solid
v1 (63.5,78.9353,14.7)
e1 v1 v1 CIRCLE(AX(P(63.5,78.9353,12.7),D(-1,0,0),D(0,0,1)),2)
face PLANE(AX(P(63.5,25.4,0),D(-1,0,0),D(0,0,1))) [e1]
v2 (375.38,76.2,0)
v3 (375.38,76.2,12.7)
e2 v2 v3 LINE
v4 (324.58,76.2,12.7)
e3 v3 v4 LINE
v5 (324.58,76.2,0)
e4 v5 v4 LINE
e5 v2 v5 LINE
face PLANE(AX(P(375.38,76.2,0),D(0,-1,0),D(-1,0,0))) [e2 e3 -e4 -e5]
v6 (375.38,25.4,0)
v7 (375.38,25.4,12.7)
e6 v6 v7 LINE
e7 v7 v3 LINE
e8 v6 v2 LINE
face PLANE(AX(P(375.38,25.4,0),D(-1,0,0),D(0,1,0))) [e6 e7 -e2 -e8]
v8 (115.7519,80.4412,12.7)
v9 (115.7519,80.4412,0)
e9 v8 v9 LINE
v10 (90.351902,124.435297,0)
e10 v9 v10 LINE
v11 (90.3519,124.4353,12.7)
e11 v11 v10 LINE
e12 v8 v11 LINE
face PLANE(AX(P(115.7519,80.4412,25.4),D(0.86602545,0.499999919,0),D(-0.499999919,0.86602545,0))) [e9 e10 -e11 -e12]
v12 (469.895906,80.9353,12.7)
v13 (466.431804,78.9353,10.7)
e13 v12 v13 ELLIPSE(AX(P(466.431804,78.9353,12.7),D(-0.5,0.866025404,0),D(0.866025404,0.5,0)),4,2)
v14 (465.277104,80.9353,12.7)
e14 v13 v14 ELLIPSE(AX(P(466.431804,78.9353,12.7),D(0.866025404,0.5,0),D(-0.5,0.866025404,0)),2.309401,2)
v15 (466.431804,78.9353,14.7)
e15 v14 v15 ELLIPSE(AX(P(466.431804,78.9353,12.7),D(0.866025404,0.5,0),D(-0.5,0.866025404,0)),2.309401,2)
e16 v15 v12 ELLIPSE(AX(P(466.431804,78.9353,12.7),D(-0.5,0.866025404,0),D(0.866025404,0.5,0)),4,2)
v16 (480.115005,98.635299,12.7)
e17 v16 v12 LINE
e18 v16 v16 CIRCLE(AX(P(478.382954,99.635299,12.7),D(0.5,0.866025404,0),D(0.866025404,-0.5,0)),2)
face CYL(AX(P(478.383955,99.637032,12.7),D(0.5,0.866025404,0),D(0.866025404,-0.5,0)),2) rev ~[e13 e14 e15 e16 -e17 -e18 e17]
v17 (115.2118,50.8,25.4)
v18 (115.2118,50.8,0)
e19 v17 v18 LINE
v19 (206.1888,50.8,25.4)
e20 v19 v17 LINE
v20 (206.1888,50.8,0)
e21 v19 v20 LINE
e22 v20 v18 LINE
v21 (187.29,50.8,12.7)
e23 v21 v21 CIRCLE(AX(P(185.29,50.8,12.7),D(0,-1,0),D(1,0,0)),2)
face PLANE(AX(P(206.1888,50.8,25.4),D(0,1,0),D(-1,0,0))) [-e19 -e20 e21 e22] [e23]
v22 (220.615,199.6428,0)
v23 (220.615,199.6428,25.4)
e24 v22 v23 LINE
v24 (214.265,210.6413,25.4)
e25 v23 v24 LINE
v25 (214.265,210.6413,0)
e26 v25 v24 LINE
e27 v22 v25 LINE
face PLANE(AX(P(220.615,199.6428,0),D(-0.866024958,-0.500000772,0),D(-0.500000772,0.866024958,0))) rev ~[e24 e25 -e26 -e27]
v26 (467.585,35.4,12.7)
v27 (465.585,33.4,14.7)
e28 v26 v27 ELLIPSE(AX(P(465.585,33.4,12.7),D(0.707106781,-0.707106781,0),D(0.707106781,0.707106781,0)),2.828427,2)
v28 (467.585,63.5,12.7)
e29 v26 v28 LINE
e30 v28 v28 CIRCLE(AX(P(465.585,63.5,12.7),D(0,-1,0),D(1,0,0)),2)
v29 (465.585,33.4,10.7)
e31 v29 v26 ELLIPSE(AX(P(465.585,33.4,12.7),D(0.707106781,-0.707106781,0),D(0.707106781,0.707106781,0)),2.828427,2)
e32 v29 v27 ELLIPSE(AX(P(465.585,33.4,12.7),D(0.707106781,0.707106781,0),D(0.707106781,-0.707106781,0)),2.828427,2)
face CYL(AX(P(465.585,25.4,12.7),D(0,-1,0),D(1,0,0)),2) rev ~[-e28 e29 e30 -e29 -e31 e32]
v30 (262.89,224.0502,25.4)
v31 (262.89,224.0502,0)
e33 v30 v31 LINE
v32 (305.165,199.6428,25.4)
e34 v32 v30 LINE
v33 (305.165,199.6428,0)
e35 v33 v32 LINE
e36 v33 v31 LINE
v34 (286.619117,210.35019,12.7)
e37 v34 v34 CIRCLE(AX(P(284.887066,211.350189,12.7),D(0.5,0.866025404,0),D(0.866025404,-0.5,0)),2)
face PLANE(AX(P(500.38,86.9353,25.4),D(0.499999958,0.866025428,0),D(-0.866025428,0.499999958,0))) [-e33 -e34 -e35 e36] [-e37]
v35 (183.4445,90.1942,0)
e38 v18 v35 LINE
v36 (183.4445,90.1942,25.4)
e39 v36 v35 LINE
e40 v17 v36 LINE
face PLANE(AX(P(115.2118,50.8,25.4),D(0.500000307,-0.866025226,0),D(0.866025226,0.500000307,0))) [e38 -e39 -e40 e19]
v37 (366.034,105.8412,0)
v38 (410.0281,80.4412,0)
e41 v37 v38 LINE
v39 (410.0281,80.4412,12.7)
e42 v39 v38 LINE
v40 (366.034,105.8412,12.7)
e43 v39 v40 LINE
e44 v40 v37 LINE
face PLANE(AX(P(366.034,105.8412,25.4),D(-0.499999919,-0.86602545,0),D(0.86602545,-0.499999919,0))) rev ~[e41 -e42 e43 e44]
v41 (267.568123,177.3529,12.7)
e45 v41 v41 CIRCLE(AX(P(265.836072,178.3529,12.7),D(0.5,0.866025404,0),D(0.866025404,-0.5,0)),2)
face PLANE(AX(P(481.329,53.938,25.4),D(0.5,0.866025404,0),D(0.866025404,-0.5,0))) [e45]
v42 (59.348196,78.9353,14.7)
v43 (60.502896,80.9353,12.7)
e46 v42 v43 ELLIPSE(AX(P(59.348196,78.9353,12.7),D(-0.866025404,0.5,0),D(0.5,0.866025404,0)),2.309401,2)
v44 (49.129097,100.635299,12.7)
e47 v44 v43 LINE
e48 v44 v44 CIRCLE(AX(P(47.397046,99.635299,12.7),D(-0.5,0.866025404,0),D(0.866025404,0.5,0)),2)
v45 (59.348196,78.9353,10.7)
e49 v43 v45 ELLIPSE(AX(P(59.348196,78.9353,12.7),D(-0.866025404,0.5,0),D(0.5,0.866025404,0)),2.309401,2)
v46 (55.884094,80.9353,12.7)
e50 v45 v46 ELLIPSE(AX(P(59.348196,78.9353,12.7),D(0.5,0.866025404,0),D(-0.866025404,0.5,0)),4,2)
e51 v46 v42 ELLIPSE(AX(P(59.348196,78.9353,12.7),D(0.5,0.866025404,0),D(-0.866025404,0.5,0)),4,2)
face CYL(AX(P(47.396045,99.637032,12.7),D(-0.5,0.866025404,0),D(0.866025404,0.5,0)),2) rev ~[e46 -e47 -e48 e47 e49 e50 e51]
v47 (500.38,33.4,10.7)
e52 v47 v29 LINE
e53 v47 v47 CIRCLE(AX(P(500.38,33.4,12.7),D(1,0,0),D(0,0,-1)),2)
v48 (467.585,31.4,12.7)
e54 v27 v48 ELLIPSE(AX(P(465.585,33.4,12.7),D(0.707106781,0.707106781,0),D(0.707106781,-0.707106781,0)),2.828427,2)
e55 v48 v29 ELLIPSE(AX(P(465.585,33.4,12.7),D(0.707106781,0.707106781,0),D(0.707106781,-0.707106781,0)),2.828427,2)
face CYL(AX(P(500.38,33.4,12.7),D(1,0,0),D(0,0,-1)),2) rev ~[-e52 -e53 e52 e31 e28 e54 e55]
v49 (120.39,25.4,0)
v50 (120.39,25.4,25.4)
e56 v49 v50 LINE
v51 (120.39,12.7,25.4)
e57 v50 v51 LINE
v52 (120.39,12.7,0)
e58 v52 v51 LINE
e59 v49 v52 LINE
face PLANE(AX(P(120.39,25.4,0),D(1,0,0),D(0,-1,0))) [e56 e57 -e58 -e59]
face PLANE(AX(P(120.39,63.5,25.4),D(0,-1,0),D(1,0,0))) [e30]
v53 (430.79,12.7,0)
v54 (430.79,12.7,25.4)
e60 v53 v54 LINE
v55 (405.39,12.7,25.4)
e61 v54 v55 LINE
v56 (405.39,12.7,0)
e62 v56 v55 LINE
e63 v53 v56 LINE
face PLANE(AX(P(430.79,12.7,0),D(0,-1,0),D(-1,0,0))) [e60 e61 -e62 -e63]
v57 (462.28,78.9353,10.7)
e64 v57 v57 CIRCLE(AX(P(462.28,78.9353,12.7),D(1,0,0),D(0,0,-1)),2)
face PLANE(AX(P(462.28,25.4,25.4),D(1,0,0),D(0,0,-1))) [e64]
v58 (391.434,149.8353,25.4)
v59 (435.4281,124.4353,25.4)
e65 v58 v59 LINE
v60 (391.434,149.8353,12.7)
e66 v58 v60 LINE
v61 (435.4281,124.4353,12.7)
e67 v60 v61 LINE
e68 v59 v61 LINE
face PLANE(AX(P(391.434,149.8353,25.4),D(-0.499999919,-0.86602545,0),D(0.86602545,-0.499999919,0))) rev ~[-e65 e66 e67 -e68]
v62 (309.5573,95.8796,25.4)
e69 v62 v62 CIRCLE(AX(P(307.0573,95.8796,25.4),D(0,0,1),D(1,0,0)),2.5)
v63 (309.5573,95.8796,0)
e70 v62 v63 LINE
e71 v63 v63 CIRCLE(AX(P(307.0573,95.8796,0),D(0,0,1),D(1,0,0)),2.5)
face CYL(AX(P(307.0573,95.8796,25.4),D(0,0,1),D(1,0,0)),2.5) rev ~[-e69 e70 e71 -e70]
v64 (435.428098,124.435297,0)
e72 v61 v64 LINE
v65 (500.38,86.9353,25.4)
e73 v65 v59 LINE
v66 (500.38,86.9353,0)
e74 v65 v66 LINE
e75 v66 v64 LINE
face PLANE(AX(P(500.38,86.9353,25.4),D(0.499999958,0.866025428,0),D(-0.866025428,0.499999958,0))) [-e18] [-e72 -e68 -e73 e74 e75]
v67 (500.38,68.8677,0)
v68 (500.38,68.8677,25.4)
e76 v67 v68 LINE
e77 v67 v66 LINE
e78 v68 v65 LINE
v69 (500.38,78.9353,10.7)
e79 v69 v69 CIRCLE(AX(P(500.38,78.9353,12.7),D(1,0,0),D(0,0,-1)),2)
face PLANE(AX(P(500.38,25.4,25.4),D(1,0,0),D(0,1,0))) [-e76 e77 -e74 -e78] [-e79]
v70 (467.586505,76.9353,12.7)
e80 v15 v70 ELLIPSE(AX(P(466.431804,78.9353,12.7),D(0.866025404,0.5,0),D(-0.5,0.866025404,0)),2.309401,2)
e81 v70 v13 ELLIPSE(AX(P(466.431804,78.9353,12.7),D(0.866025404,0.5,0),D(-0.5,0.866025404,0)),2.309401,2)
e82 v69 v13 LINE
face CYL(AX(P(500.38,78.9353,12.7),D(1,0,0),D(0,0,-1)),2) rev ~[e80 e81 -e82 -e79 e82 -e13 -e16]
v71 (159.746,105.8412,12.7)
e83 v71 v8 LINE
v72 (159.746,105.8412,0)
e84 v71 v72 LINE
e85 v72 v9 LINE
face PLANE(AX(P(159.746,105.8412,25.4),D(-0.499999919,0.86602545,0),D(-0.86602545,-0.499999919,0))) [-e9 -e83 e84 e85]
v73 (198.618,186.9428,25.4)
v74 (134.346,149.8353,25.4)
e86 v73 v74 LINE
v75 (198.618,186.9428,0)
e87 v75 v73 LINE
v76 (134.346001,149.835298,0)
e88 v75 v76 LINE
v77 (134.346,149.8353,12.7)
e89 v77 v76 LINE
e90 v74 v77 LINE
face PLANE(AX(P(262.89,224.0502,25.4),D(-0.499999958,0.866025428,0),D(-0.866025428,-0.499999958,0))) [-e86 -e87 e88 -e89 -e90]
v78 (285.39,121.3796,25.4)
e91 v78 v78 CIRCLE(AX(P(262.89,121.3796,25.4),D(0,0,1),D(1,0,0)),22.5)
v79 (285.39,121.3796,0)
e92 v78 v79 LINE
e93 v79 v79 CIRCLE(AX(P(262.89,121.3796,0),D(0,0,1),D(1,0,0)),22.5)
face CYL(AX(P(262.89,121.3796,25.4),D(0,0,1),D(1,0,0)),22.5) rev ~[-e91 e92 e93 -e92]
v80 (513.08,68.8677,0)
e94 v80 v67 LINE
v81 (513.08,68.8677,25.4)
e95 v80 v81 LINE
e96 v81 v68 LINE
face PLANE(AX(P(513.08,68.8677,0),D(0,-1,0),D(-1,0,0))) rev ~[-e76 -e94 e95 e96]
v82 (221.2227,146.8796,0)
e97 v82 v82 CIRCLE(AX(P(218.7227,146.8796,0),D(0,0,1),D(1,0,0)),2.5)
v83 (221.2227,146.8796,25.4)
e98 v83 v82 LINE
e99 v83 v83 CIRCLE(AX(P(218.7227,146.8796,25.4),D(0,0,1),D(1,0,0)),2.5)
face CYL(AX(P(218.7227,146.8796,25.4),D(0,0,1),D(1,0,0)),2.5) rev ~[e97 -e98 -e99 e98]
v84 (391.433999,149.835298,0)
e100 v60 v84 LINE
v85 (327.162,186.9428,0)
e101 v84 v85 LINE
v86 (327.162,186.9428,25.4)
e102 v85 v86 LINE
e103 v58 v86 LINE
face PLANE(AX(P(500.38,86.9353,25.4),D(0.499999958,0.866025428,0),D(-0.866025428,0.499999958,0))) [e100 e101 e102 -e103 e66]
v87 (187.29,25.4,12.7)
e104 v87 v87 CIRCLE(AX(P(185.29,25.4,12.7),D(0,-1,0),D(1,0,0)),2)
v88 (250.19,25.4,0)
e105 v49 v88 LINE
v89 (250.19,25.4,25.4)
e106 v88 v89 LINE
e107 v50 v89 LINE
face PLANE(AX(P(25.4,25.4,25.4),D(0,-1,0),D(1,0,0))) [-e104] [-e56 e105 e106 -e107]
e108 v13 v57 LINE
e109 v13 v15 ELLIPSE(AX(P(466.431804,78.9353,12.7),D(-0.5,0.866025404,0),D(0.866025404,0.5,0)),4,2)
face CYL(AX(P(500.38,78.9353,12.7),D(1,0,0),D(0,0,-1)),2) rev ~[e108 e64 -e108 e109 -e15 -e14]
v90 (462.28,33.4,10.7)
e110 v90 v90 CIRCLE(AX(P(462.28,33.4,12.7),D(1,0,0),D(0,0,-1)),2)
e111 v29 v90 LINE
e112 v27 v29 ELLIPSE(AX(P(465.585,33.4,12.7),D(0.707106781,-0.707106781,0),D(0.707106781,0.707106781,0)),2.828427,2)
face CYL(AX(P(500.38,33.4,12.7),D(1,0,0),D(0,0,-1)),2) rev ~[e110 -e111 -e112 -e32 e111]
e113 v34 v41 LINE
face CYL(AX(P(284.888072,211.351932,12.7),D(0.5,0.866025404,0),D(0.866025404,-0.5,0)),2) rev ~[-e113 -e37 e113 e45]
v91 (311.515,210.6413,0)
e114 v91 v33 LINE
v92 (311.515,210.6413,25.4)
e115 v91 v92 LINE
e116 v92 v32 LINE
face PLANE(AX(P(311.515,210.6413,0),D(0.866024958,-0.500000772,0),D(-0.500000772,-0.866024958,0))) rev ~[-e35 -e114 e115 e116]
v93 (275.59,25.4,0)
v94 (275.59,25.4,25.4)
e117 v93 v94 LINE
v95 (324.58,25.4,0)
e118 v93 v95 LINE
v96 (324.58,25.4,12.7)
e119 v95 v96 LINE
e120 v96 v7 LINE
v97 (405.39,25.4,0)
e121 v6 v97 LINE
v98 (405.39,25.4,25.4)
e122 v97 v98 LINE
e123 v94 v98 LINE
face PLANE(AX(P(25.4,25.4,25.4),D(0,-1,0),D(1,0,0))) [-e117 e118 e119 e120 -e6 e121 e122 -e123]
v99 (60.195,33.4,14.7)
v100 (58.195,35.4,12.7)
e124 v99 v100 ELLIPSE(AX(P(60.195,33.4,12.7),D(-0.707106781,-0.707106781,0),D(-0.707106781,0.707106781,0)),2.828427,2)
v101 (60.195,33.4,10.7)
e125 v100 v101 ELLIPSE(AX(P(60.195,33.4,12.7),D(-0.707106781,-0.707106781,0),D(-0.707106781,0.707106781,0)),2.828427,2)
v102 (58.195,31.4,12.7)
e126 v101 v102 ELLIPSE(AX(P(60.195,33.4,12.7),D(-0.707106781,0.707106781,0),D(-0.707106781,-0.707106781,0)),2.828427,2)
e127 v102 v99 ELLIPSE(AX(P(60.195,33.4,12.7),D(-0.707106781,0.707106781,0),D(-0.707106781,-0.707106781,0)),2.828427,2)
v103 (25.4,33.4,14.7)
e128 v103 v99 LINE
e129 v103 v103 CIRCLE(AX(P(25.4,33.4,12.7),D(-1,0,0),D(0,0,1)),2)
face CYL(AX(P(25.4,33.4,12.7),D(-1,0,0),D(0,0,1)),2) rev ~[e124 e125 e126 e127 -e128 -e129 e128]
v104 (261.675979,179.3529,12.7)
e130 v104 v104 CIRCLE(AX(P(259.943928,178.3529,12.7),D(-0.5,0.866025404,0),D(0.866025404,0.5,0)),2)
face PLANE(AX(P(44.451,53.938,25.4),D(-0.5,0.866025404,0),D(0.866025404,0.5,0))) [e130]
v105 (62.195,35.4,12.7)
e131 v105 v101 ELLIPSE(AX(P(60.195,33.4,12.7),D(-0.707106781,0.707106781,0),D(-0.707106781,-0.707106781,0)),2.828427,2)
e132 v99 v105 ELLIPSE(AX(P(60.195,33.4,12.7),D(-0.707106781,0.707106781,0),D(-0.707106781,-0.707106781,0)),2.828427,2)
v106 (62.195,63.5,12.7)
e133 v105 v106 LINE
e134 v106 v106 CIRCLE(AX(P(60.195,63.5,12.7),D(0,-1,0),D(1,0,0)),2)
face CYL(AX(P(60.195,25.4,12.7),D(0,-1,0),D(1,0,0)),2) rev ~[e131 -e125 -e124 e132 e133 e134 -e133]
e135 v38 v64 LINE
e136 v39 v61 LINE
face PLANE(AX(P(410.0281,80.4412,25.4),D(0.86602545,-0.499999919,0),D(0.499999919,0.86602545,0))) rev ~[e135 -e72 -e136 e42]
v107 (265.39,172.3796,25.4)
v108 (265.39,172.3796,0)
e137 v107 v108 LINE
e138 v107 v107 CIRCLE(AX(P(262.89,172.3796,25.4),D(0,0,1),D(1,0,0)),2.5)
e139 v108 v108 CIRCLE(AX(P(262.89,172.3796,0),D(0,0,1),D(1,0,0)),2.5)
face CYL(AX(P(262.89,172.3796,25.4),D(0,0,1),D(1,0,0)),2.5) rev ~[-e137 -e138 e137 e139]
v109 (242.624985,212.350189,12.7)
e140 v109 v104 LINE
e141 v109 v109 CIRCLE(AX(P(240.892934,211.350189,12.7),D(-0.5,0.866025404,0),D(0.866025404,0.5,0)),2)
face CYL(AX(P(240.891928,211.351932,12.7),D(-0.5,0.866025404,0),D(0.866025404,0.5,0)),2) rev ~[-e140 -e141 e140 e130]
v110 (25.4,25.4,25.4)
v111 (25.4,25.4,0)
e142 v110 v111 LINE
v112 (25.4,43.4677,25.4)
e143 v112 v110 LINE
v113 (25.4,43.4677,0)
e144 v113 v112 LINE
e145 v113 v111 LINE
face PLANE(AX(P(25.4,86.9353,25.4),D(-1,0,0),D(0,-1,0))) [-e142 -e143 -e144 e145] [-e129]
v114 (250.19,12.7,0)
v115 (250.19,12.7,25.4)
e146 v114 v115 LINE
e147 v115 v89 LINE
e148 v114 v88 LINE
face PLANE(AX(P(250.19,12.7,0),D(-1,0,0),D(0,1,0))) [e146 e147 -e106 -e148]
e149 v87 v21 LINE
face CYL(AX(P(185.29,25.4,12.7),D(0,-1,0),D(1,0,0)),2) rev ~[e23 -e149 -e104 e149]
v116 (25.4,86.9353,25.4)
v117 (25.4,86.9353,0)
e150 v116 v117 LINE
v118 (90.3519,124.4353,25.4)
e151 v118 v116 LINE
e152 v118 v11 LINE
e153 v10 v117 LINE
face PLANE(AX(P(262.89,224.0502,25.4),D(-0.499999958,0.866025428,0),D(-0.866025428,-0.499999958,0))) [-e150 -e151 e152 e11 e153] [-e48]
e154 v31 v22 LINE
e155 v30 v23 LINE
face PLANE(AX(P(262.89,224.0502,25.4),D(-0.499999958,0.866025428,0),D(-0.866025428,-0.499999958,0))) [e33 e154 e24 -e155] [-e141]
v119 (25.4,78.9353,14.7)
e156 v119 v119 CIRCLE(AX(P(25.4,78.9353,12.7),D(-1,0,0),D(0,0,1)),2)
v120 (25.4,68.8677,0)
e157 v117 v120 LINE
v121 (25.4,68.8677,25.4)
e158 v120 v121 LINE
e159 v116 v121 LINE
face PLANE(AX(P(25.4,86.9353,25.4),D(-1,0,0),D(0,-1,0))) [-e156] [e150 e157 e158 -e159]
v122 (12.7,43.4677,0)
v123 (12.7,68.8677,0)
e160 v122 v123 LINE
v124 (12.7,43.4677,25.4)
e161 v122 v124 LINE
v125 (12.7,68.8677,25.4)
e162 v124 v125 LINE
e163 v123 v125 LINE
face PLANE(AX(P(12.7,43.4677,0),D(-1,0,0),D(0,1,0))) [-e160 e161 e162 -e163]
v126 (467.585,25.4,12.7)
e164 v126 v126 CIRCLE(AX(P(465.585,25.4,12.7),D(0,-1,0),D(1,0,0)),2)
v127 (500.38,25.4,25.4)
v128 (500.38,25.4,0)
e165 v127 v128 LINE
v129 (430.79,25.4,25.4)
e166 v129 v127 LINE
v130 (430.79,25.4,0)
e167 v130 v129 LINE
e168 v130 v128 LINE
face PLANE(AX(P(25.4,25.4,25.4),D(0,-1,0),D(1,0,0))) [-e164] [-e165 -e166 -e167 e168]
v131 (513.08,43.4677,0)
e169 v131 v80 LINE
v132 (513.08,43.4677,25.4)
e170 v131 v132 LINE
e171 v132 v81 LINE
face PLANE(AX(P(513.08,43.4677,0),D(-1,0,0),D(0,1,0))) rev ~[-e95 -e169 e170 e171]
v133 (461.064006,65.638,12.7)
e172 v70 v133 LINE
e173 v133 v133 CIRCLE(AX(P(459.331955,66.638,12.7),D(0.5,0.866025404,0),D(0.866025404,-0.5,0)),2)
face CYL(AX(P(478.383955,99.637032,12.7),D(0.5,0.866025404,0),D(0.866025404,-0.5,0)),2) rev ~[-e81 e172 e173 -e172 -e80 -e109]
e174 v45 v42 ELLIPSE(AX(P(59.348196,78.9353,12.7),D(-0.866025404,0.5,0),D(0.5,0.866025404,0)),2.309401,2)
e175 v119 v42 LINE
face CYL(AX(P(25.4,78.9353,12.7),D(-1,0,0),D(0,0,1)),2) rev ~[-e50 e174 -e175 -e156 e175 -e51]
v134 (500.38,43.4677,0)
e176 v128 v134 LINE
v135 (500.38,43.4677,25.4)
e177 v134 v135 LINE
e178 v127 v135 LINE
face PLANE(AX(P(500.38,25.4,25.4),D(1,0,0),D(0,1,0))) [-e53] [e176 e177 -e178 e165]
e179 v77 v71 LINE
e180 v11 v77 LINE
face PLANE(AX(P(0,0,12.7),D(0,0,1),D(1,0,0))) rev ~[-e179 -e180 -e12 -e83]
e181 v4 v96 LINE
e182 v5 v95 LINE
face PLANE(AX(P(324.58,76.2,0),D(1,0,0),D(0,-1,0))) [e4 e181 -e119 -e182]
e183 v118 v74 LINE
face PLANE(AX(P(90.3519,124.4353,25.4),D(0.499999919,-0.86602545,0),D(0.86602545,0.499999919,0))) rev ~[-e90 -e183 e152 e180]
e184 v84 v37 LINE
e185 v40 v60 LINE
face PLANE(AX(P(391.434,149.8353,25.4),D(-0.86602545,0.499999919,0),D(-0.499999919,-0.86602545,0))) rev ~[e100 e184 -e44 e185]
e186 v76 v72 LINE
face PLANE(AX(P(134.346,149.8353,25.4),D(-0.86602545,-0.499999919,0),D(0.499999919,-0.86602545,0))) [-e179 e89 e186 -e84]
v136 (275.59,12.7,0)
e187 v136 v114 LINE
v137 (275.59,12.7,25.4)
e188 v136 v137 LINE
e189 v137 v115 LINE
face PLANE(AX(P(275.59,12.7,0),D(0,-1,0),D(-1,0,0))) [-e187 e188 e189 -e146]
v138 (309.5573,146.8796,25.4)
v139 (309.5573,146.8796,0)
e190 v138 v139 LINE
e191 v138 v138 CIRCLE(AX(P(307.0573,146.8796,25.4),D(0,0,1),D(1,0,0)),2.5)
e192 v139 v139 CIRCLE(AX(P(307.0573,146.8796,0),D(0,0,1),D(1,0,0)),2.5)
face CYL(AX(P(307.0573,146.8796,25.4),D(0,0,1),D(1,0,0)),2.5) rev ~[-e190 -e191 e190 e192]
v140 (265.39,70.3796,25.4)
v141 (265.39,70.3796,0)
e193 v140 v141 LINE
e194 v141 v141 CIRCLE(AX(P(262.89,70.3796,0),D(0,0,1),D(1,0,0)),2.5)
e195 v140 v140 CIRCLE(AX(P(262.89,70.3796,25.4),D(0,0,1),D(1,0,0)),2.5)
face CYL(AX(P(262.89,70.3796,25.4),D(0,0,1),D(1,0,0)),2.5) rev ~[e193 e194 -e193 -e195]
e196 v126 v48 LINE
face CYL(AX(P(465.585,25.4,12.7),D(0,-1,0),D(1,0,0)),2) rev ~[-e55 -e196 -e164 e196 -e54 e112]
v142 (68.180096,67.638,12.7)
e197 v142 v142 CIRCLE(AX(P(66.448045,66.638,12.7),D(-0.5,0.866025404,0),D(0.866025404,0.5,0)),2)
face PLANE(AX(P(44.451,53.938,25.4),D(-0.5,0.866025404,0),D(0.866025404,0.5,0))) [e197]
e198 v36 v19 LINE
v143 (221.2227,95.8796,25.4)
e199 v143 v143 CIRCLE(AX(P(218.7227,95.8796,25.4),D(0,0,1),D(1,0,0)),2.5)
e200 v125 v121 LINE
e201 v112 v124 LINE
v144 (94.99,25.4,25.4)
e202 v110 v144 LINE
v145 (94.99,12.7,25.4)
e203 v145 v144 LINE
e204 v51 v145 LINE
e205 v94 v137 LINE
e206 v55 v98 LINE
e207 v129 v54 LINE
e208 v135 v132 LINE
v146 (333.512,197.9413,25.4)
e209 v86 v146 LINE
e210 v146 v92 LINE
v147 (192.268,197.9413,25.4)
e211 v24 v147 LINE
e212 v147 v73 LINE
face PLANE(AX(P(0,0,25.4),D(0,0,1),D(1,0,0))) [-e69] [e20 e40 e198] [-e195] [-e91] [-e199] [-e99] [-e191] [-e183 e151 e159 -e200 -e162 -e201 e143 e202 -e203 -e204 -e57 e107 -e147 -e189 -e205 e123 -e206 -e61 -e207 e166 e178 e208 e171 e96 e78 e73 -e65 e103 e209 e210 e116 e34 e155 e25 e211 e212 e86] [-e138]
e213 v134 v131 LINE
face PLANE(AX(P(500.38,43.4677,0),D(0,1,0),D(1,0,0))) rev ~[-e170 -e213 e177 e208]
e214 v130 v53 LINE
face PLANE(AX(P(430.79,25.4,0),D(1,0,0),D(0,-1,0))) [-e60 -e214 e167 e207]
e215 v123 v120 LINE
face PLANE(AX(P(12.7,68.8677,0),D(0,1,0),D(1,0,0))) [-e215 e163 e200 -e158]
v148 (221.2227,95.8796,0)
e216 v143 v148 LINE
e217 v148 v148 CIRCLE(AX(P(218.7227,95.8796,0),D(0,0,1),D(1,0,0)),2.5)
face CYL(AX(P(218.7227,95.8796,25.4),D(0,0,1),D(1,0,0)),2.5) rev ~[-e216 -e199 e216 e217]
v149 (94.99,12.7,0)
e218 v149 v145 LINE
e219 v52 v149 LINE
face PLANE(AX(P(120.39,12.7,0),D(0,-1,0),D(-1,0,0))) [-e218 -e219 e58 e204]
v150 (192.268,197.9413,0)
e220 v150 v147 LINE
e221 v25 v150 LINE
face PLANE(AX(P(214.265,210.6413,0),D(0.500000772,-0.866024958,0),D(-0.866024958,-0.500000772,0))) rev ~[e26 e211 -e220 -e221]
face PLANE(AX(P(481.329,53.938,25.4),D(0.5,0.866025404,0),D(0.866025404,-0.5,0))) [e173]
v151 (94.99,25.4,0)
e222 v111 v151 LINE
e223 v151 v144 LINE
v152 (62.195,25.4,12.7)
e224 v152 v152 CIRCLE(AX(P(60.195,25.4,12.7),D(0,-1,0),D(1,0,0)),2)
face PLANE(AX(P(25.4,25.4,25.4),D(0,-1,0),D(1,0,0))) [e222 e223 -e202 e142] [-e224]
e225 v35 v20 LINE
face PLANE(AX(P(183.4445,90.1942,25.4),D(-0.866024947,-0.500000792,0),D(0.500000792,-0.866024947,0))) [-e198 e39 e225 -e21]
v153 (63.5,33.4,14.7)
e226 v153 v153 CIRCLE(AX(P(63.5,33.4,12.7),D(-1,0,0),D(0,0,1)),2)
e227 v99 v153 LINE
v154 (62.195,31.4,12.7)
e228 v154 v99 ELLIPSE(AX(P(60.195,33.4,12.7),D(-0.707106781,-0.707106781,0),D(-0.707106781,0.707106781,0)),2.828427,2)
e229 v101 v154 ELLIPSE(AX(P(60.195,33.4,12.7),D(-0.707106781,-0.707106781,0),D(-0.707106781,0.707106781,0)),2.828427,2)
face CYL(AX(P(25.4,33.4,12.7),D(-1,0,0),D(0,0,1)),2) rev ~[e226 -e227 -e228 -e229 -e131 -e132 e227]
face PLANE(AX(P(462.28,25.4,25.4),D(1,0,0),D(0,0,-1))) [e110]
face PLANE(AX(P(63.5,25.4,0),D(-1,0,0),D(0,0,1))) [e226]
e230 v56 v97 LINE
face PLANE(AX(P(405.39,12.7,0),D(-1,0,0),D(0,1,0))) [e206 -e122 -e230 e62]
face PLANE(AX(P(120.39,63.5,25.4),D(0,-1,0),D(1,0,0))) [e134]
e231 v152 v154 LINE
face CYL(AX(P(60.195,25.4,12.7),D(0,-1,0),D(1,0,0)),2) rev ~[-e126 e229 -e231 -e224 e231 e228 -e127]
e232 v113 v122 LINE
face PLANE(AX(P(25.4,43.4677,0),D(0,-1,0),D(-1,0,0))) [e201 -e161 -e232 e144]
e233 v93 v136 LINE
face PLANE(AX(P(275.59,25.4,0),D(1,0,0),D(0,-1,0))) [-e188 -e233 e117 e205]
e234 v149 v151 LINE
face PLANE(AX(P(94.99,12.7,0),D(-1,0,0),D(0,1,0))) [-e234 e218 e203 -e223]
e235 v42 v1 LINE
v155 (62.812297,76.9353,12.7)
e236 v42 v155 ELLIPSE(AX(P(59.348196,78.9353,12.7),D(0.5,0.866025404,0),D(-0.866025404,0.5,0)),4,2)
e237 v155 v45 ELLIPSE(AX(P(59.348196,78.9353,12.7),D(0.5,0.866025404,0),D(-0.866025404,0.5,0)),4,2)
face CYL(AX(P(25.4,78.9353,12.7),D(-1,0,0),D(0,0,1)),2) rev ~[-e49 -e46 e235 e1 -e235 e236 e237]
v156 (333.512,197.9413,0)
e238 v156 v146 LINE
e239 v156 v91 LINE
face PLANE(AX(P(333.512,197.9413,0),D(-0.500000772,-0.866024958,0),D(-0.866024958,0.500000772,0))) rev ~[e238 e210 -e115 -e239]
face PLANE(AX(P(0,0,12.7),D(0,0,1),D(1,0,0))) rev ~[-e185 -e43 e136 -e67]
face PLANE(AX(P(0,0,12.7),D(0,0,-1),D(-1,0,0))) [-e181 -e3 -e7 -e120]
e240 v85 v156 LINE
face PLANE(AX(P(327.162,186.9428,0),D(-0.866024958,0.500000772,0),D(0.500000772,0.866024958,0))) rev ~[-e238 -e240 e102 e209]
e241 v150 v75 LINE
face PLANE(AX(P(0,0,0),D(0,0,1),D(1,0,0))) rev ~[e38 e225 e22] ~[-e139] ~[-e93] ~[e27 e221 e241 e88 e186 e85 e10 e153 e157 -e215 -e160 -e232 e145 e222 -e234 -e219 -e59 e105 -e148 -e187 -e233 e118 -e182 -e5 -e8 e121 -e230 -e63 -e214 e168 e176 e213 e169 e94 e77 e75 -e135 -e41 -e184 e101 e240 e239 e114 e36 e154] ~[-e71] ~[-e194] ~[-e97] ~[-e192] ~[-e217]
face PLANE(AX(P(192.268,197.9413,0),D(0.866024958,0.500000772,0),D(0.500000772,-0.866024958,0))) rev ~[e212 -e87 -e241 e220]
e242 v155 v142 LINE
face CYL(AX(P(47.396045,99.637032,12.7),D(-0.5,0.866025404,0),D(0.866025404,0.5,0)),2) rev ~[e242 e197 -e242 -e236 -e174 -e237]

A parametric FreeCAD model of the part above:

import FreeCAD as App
import Part
import Sketcher
Q = App.Units.Quantity


def add_polygon(sketch, points):
    """Adds a closed chain of lines whose ends are joined by coincident constraints."""
    first, n = sketch.GeometryCount, len(points)
    for a, b in zip(points, points[1:] + points[:1]):
        sketch.addGeometry(Part.LineSegment(App.Vector(*a, 0), App.Vector(*b, 0)), False)
    for i in range(n):
        sketch.addConstraint(Sketcher.Constraint("Coincident", first + i, 2, first + (i + 1) % n, 1))

doc = App.newDocument("Part")
body = doc.addObject("PartDesign::Body", "Body")

sketch1 = doc.addObject("Sketcher::SketchObject", "Sketch")
body.addObject(sketch1)
sketch1.AttachmentSupport = (doc.XY_Plane, [""])
sketch1.MapMode = "FlatFace"
add_polygon(sketch1, [(526, 102), (263, 253), (0, 102), (0, 0), (526, 0)])
sketch1.addConstraint([
    Sketcher.Constraint("Vertical", 2),
    Sketcher.Constraint("Horizontal", 3),
    Sketcher.Constraint("Vertical", 4),
    Sketcher.Constraint("Coincident", 2, 2, -1, 1),
    Sketcher.Constraint("Horizontal", 1, 2, 4, 2),
    Sketcher.Constraint("Equal", 0, 1),
    Sketcher.Constraint("DistanceY", 2, 2, 2, 1, Q("4 in")),
    Sketcher.Constraint("DistanceX", 3, 1, 3, 2, Q("20.7 in")),
    Sketcher.Constraint("Angle", 0, Q("150 deg")),
])
pad1 = doc.addObject("PartDesign::Pad", "Pad")
body.addObject(pad1)
pad1.Profile = sketch1
pad1.Length = Q("1 in")

sketch2 = doc.addObject("Sketcher::SketchObject", "Sketch001")
body.addObject(sketch2)
sketch2.AttachmentSupport = (doc.XY_Plane, [""])
sketch2.MapMode = "FlatFace"
sketch2.AttachmentOffset = App.Placement(App.Vector(0, 0, 1 * 25.4), App.Rotation())
sketch2.addGeometry(Part.Circle(App.Vector(263, 121, 0), App.Vector(0, 0, 1), 22), False)
sketch2.addConstraint([
    Sketcher.Constraint("Diameter", 0, 45.0),
    Sketcher.Constraint("DistanceX", -1, 1, 0, 3, Q("10.35 in")),
    Sketcher.Constraint("DistanceY", -1, 1, 0, 3, 121.3796),
])
pocket1 = doc.addObject("PartDesign::Pocket", "Pocket")
body.addObject(pocket1)
pocket1.Profile = sketch2
pocket1.Type = "ThroughAll"

sketch3 = doc.addObject("Sketcher::SketchObject", "Sketch002")
body.addObject(sketch3)
sketch3.AttachmentSupport = (doc.XY_Plane, [""])
sketch3.MapMode = "FlatFace"
sketch3.AttachmentOffset = App.Placement(App.Vector(0, 0, 1 * 25.4), App.Rotation())
add_polygon(sketch3, [(263, 253), (0, 102), (0, 0), (526, 0), (526, 102)])
add_polygon(sketch3, [(25, 25), (25, 87), (263, 224), (500, 87), (500, 25)])
sketch3.addConstraint([
    Sketcher.Constraint("Vertical", 1),
    Sketcher.Constraint("Horizontal", 2),
    Sketcher.Constraint("Vertical", 3),
    Sketcher.Constraint("Vertical", 5),
    Sketcher.Constraint("Vertical", 8),
    Sketcher.Constraint("Horizontal", 9),
    Sketcher.Constraint("Coincident", 1, 2, -1, 1),
    Sketcher.Constraint("Parallel", 0, 6),
    Sketcher.Constraint("Parallel", 4, 7),
    Sketcher.Constraint("Horizontal", 0, 2, 3, 2),
    Sketcher.Constraint("Horizontal", 5, 2, 7, 2),
    Sketcher.Constraint("Vertical", 4, 2, 6, 2),
    Sketcher.Constraint("Equal", 0, 4),
    Sketcher.Constraint("DistanceX", -1, 1, 5, 2, Q("1 in")),
    Sketcher.Constraint("DistanceY", -1, 1, 8, 2, Q("1 in")),
    Sketcher.Constraint("DistanceY", 1, 2, 1, 1, Q("4 in")),
    Sketcher.Constraint("DistanceX", 2, 1, 2, 2, Q("20.7 in")),
    Sketcher.Constraint("Angle", 0, Q("-150 deg")),
    Sketcher.Constraint("DistanceY", 5, 1, 5, 2, 61.5353),
])
pocket2 = doc.addObject("PartDesign::Pocket", "Pocket001")
body.addObject(pocket2)
pocket2.Profile = sketch3
pocket2.Type = "ThroughAll"

sketch4 = doc.addObject("Sketcher::SketchObject", "Sketch003")
body.addObject(sketch4)
sketch4.AttachmentSupport = (doc.XY_Plane, [""])
sketch4.MapMode = "FlatFace"
sketch4.AttachmentOffset = App.Placement(App.Vector(0, 0, 1 * 25.4), App.Rotation())
add_polygon(sketch4, [(160, 106), (134, 150), (90, 124), (116, 80)])
add_polygon(sketch4, [(435, 124), (391, 150), (366, 106), (410, 80)])
sketch4.addConstraint([
    Sketcher.Constraint("Perpendicular", 0, 1),
    Sketcher.Constraint("Perpendicular", 1, 2),
    Sketcher.Constraint("Perpendicular", 2, 3),
    Sketcher.Constraint("Perpendicular", 4, 5),
    Sketcher.Constraint("Perpendicular", 5, 6),
    Sketcher.Constraint("Perpendicular", 6, 7),
    Sketcher.Constraint("Horizontal", 0, 2, 4, 2),
    Sketcher.Constraint("Horizontal", 3, 2, 5, 2),
    Sketcher.Constraint("Horizontal", 2, 2, 6, 2),
    Sketcher.Constraint("Equal", 0, 1),
    Sketcher.Constraint("Equal", 3, 4),
    Sketcher.Constraint("Distance", 0, Q("2 in")),
    Sketcher.Constraint("Angle", 0, Q("120 deg")),
    Sketcher.Constraint("DistanceX", -1, 1, 0, 2, 134.346),
    Sketcher.Constraint("DistanceY", -1, 1, 0, 2, 149.8353),
    Sketcher.Constraint("DistanceX", -1, 1, 4, 2, 391.434),
])
pocket3 = doc.addObject("PartDesign::Pocket", "Pocket002")
body.addObject(pocket3)
pocket3.Profile = sketch4
pocket3.Type = "ThroughAll"

sketch5 = doc.addObject("Sketcher::SketchObject", "Sketch004")
body.addObject(sketch5)
sketch5.AttachmentSupport = (doc.XY_Plane, [""])
sketch5.MapMode = "FlatFace"
add_polygon(sketch5, [(13, 69), (25, 69), (25, 43), (13, 43)])
add_polygon(sketch5, [(513, 43), (500, 43), (500, 69), (513, 69)])
add_polygon(sketch5, [(405, 13), (405, 25), (431, 25), (431, 13)])
add_polygon(sketch5, [(250, 13), (250, 25), (276, 25), (276, 13)])
add_polygon(sketch5, [(95, 13), (95, 25), (120, 25), (120, 13)])
add_polygon(sketch5, [(214, 211), (221, 200), (199, 187), (192, 198)])
add_polygon(sketch5, [(327, 187), (305, 200), (312, 211), (334, 198)])
sketch5.addConstraint([
    Sketcher.Constraint("Horizontal", 0),
    Sketcher.Constraint("Vertical", 1),
    Sketcher.Constraint("Horizontal", 2),
    Sketcher.Constraint("Vertical", 3),
    Sketcher.Constraint("Horizontal", 4),
    Sketcher.Constraint("Vertical", 5),
    Sketcher.Constraint("Horizontal", 6),
    Sketcher.Constraint("Vertical", 7),
    Sketcher.Constraint("Vertical", 8),
    Sketcher.Constraint("Horizontal", 9),
    Sketcher.Constraint("Vertical", 10),
    Sketcher.Constraint("Horizontal", 11),
    Sketcher.Constraint("Vertical", 12),
    Sketcher.Constraint("Horizontal", 13),
    Sketcher.Constraint("Vertical", 14),
    Sketcher.Constraint("Horizontal", 15),
    Sketcher.Constraint("Vertical", 16),
    Sketcher.Constraint("Horizontal", 17),
    Sketcher.Constraint("Vertical", 18),
    Sketcher.Constraint("Horizontal", 19),
    Sketcher.Constraint("Perpendicular", 20, 21),
    Sketcher.Constraint("Perpendicular", 21, 22),
    Sketcher.Constraint("Perpendicular", 22, 23),
    Sketcher.Constraint("Perpendicular", 24, 25),
    Sketcher.Constraint("Perpendicular", 25, 26),
    Sketcher.Constraint("Perpendicular", 26, 27),
    Sketcher.Constraint("Horizontal", 2, 2, 4, 2),
    Sketcher.Constraint("Horizontal", 3, 2, 5, 2),
    Sketcher.Constraint("Horizontal", 9, 2, 12, 2),
    Sketcher.Constraint("Horizontal", 11, 2, 14, 2),
    Sketcher.Constraint("Horizontal", 13, 2, 16, 2),
    Sketcher.Constraint("Horizontal", 15, 2, 18, 2),
    Sketcher.Constraint("Horizontal", 20, 2, 24, 2),
    Sketcher.Constraint("Horizontal", 23, 2, 25, 2),
    Sketcher.Constraint("Horizontal", 22, 2, 26, 2),
    Sketcher.Constraint("Equal", 2, 4),
    Sketcher.Constraint("Equal", 11, 13),
    Sketcher.Constraint("Equal", 15, 17),
    Sketcher.Constraint("Equal", 19, 1),
    Sketcher.Constraint("Equal", 6, 8),
    Sketcher.Constraint("Equal", 23, 24),
    Sketcher.Constraint("DistanceX", 9, 1, 9, 2, Q("1 in")),
    Sketcher.Constraint("Distance", 21, Q("1 in")),
    Sketcher.Constraint("DistanceX", 0, 1, 0, 2, Q("0.5 in")),
    Sketcher.Constraint("DistanceX", -1, 1, 0, 2, Q("1 in")),
    Sketcher.Constraint("DistanceY", -1, 1, 8, 2, Q("1 in")),
    Sketcher.Constraint("Distance", 20, Q("0.5 in")),
    Sketcher.Constraint("DistanceY", 21, 2, 20, 2, Q("0.5 in")),
    Sketcher.Constraint("DistanceX", -1, 1, 4, 2, Q("19.7 in")),
    Sketcher.Constraint("DistanceX", -1, 1, 12, 2, Q("9.85 in")),
    Sketcher.Constraint("DistanceX", -1, 1, 21, 2, Q("7.8196 in")),
    Sketcher.Constraint("DistanceX", -1, 1, 26, 2, Q("13.1304 in")),
    Sketcher.Constraint("DistanceY", -1, 1, 0, 2, 68.8677),
    Sketcher.Constraint("DistanceX", -1, 1, 8, 2, 405.39),
    Sketcher.Constraint("DistanceX", -1, 1, 16, 2, 94.99),
    Sketcher.Constraint("DistanceY", -1, 1, 20, 2, 199.6428),
])
pad2 = doc.addObject("PartDesign::Pad", "Pad001")
body.addObject(pad2)
pad2.Profile = sketch5
pad2.Length = Q("1 in")

sketch6 = doc.addObject("Sketcher::SketchObject", "Sketch005")
body.addObject(sketch6)
sketch6.AttachmentSupport = (doc.XY_Plane, [""])
sketch6.MapMode = "FlatFace"
add_polygon(sketch6, [(375, 25), (325, 25), (325, 76), (375, 76)])
sketch6.addConstraint([
    Sketcher.Constraint("Horizontal", 0),
    Sketcher.Constraint("Vertical", 1),
    Sketcher.Constraint("Horizontal", 2),
    Sketcher.Constraint("Vertical", 3),
    Sketcher.Constraint("Equal", 2, 1),
    Sketcher.Constraint("DistanceX", 0, 2, 0, 1, Q("2 in")),
    Sketcher.Constraint("DistanceY", -1, 1, 0, 2, Q("1 in")),
    Sketcher.Constraint("DistanceX", -1, 1, 0, 2, 324.58),
])
pocket4 = doc.addObject("PartDesign::Pocket", "Pocket003")
body.addObject(pocket4)
pocket4.Profile = sketch6
pocket4.Length = Q("0.5 in")
pocket4.Reversed = True

sketch7 = doc.addObject("Sketcher::SketchObject", "Sketch006")
body.addObject(sketch7)
sketch7.AttachmentSupport = (doc.XY_Plane, [""])
sketch7.MapMode = "FlatFace"
sketch7.AttachmentOffset = App.Placement(App.Vector(0, 0, 1 * 25.4), App.Rotation())
add_polygon(sketch7, [(183, 90), (115, 51), (206, 51)])
sketch7.addConstraint([
    Sketcher.Constraint("Horizontal", 1),
    Sketcher.Constraint("Perpendicular", 0, 2),
    Sketcher.Constraint("DistanceY", -1, 1, 0, 2, Q("2 in")),
    Sketcher.Constraint("Angle", 0, Q("-150 deg")),
    Sketcher.Constraint("Distance", 0, Q("3.1019 in")),
    Sketcher.Constraint("DistanceX", -1, 1, 0, 2, Q("4.5359 in")),
])
pocket5 = doc.addObject("PartDesign::Pocket", "Pocket004")
body.addObject(pocket5)
pocket5.Profile = sketch7
pocket5.Type = "ThroughAll"

sketch8 = doc.addObject("Sketcher::SketchObject", "Sketch007")
body.addObject(sketch8)
sketch8.AttachmentSupport = (doc.XY_Plane, [""])
sketch8.MapMode = "FlatFace"
sketch8.AttachmentOffset = App.Placement(App.Vector(0, 0, 1 * 25.4), App.Rotation())
sketch8.addGeometry([
    Part.Circle(App.Vector(307.1, 146.9, 0), App.Vector(0, 0, 1), 2.5),
    Part.Circle(App.Vector(262.9, 121.4, 0), App.Vector(0, 0, 1), 22.5),
    Part.Circle(App.Vector(262.9, 172.4, 0), App.Vector(0, 0, 1), 2.5),
    Part.Circle(App.Vector(218.7, 146.9, 0), App.Vector(0, 0, 1), 2.5),
    Part.Circle(App.Vector(218.7, 95.9, 0), App.Vector(0, 0, 1), 2.5),
    Part.Circle(App.Vector(262.9, 70.4, 0), App.Vector(0, 0, 1), 2.5),
    Part.Circle(App.Vector(307.1, 95.9, 0), App.Vector(0, 0, 1), 2.5),
], False)
sketch8.addConstraint([
    Sketcher.Constraint("Equal", 0, 2),
    Sketcher.Constraint("Equal", 2, 3),
    Sketcher.Constraint("Equal", 3, 4),
    Sketcher.Constraint("Equal", 4, 5),
    Sketcher.Constraint("Equal", 5, 6),
    Sketcher.Constraint("Horizontal", 0, 3, 3, 3),
    Sketcher.Constraint("Horizontal", 4, 3, 6, 3),
    Sketcher.Constraint("Vertical", 1, 3, 2, 3),
    Sketcher.Constraint("Vertical", 3, 3, 4, 3),
    Sketcher.Constraint("Vertical", 2, 3, 5, 3),
    Sketcher.Constraint("Vertical", 0, 3, 6, 3),
    Sketcher.Constraint("Diameter", 0, 5.0),
    Sketcher.Constraint("Diameter", 1, 45.0),
    Sketcher.Constraint("DistanceX", -1, 1, 1, 3, Q("10.35 in")),
    Sketcher.Constraint("DistanceY", 1, 3, 2, 3, 51.0),
    Sketcher.Constraint("DistanceY", 4, 3, 3, 3, 51.0),
    Sketcher.Constraint("DistanceY", 5, 3, 1, 3, 51.0),
    Sketcher.Constraint("DistanceY", -1, 1, 2, 3, Q("6.7866 in")),
    Sketcher.Constraint("DistanceY", 4, 3, 2, 3, Q("3.0118 in")),
    Sketcher.Constraint("DistanceX", -1, 1, 0, 3, 307.0573),
    Sketcher.Constraint("DistanceX", -1, 1, 3, 3, 218.7227),
])
pocket6 = doc.addObject("PartDesign::Pocket", "Pocket005")
body.addObject(pocket6)
pocket6.Profile = sketch8
pocket6.Type = "ThroughAll"

sketch9 = doc.addObject("Sketcher::SketchObject", "Sketch008")
body.addObject(sketch9)
sketch9.AttachmentSupport = (doc.XY_Plane, [""])
sketch9.MapMode = "FlatFace"
sketch9.AttachmentOffset = App.Placement(App.Vector(0, 0, 1 * 25.4), App.Rotation())
add_polygon(sketch9, [(90, 124), (116, 80), (160, 106), (134, 150)])
add_polygon(sketch9, [(391, 150), (366, 106), (410, 80), (435, 124)])
sketch9.addConstraint([
    Sketcher.Constraint("Perpendicular", 0, 1),
    Sketcher.Constraint("Perpendicular", 1, 2),
    Sketcher.Constraint("Perpendicular", 2, 3),
    Sketcher.Constraint("Perpendicular", 4, 5),
    Sketcher.Constraint("Perpendicular", 5, 6),
    Sketcher.Constraint("Perpendicular", 6, 7),
    Sketcher.Constraint("Horizontal", 1, 2, 4, 2),
    Sketcher.Constraint("Horizontal", 0, 2, 5, 2),
    Sketcher.Constraint("Horizontal", 3, 2, 6, 2),
    Sketcher.Constraint("Equal", 0, 1),
    Sketcher.Constraint("Equal", 3, 4),
    Sketcher.Constraint("Distance", 0, Q("2 in")),
    Sketcher.Constraint("Angle", 0, Q("-60 deg")),
    Sketcher.Constraint("DistanceX", -1, 1, 0, 2, 115.752),
    Sketcher.Constraint("DistanceY", -1, 1, 0, 2, 80.4412),
    Sketcher.Constraint("DistanceX", -1, 1, 4, 2, 366.034),
])
pad3 = doc.addObject("PartDesign::Pad", "Pad002")
body.addObject(pad3)
pad3.Profile = sketch9
pad3.Length = Q("0.5 in")
pad3.Reversed = True

sketch10 = doc.addObject("Sketcher::SketchObject", "Sketch009")
body.addObject(sketch10)
sketch10.Placement = App.Placement(App.Vector(500.38, 86.9353, 25.4), App.Rotation(App.Vector(0.866025404, -0.5, 0), App.Vector(0, 0, -1), App.Vector(0.5, 0.866025404, 0), "ZXY"))
sketch10.addGeometry([
    Part.Circle(App.Vector(-25.4, 12.7, 0), App.Vector(0, 0, 1), 2),
    Part.Circle(App.Vector(-248.8, 12.7, 0), App.Vector(0, 0, 1), 2),
], False)
sketch10.addConstraint([
    Sketcher.Constraint("Equal", 0, 1),
    Sketcher.Constraint("Horizontal", 0, 3, 1, 3),
    Sketcher.Constraint("DistanceX", 0, 3, -1, 1, Q("1 in")),
    Sketcher.Constraint("Diameter", 0, 4.0),
    Sketcher.Constraint("DistanceY", -1, 1, 0, 3, Q("0.5 in")),
    Sketcher.Constraint("DistanceX", 1, 3, -1, 1, 248.8298),
])
pocket7 = doc.addObject("PartDesign::Pocket", "Pocket006")
body.addObject(pocket7)
pocket7.Profile = sketch10
pocket7.Length = Q("1.5 in")

sketch11 = doc.addObject("Sketcher::SketchObject", "Sketch010")
body.addObject(sketch11)
sketch11.Placement = App.Placement(App.Vector(25.4, 86.9353, 25.4), App.Rotation(App.Vector(0.866025404, 0.5, 0), App.Vector(0, 0, -1), App.Vector(-0.5, 0.866025404, 0), "ZXY"))
sketch11.addGeometry([
    Part.Circle(App.Vector(248.8, 12.7, 0), App.Vector(0, 0, 1), 2),
    Part.Circle(App.Vector(25.4, 12.7, 0), App.Vector(0, 0, 1), 2),
], False)
sketch11.addConstraint([
    Sketcher.Constraint("Equal", 0, 1),
    Sketcher.Constraint("Horizontal", 0, 3, 1, 3),
    Sketcher.Constraint("DistanceX", -1, 1, 1, 3, Q("1 in")),
    Sketcher.Constraint("Diameter", 0, 4.0),
    Sketcher.Constraint("DistanceY", -1, 1, 0, 3, Q("0.5 in")),
    Sketcher.Constraint("DistanceX", -1, 1, 0, 3, 248.8298),
])
pocket8 = doc.addObject("PartDesign::Pocket", "Pocket007")
body.addObject(pocket8)
pocket8.Profile = sketch11
pocket8.Length = Q("1.5 in")

sketch12 = doc.addObject("Sketcher::SketchObject", "Sketch011")
body.addObject(sketch12)
sketch12.AttachmentSupport = (doc.YZ_Plane, [""])
sketch12.MapMode = "FlatFace"
sketch12.AttachmentOffset = App.Placement(App.Vector(0, 0, 19.7 * 25.4), App.Rotation())
sketch12.addGeometry([
    Part.Circle(App.Vector(33.4, 12.7, 0), App.Vector(0, 0, 1), 2),
    Part.Circle(App.Vector(78.9, 12.7, 0), App.Vector(0, 0, 1), 2),
], False)
sketch12.addConstraint([
    Sketcher.Constraint("Equal", 0, 1),
    Sketcher.Constraint("Horizontal", 0, 3, 1, 3),
    Sketcher.Constraint("Diameter", 0, 4.0),
    Sketcher.Constraint("DistanceY", -1, 1, 0, 3, Q("0.5 in")),
    Sketcher.Constraint("DistanceX", -1, 1, 1, 3, Q("3.1077 in")),
    Sketcher.Constraint("DistanceX", -1, 1, 0, 3, 33.4),
])
pocket9 = doc.addObject("PartDesign::Pocket", "Pocket008")
body.addObject(pocket9)
pocket9.Profile = sketch12
pocket9.Length = Q("1.5 in")

sketch13 = doc.addObject("Sketcher::SketchObject", "Sketch012")
body.addObject(sketch13)
sketch13.AttachmentSupport = (doc.YZ_Plane, [""])
sketch13.MapMode = "FlatFace"
sketch13.AttachmentOffset = App.Placement(App.Vector(0, 0, 1 * 25.4), App.Rotation())
sketch13.addGeometry([
    Part.Circle(App.Vector(78.9, 12.7, 0), App.Vector(0, 0, 1), 2),
    Part.Circle(App.Vector(33.4, 12.7, 0), App.Vector(0, 0, 1), 2),
], False)
sketch13.addConstraint([
    Sketcher.Constraint("Equal", 0, 1),
    Sketcher.Constraint("Horizontal", 0, 3, 1, 3),
    Sketcher.Constraint("DistanceY", -1, 1, 0, 3, Q("0.5 in")),
    Sketcher.Constraint("Diameter", 0, 4.0),
    Sketcher.Constraint("DistanceX", -1, 1, 0, 3, Q("3.1077 in")),
    Sketcher.Constraint("DistanceX", -1, 1, 1, 3, 33.4),
])
pocket10 = doc.addObject("PartDesign::Pocket", "Pocket009")
body.addObject(pocket10)
pocket10.Profile = sketch13
pocket10.Length = Q("1.5 in")
pocket10.Reversed = True

sketch14 = doc.addObject("Sketcher::SketchObject", "Sketch013")
body.addObject(sketch14)
sketch14.AttachmentSupport = (doc.XZ_Plane, [""])
sketch14.MapMode = "FlatFace"
sketch14.AttachmentOffset = App.Placement(App.Vector(0, 0, -1 * 25.4), App.Rotation())
sketch14.addGeometry([
    Part.Circle(App.Vector(60.2, 12.7, 0), App.Vector(0, 0, 1), 2),
    Part.Circle(App.Vector(185.3, 12.7, 0), App.Vector(0, 0, 1), 2),
    Part.Circle(App.Vector(465.6, 12.7, 0), App.Vector(0, 0, 1), 2),
], False)
sketch14.addConstraint([
    Sketcher.Constraint("Equal", 0, 1),
    Sketcher.Constraint("Equal", 1, 2),
    Sketcher.Constraint("Horizontal", 0, 3, 1, 3),
    Sketcher.Constraint("Horizontal", 1, 3, 2, 3),
    Sketcher.Constraint("Diameter", 0, 4.0),
    Sketcher.Constraint("DistanceY", -1, 1, 0, 3, Q("0.5 in")),
    Sketcher.Constraint("DistanceX", 0, 3, 1, 3, Q("4.925 in")),
    Sketcher.Constraint("DistanceX", -1, 1, 0, 3, 60.195),
    Sketcher.Constraint("DistanceX", -1, 1, 2, 3, 465.585),
])
pocket11 = doc.addObject("PartDesign::Pocket", "Pocket010")
body.addObject(pocket11)
pocket11.Profile = sketch14
pocket11.Length = Q("1.5 in")

doc.recompute()
